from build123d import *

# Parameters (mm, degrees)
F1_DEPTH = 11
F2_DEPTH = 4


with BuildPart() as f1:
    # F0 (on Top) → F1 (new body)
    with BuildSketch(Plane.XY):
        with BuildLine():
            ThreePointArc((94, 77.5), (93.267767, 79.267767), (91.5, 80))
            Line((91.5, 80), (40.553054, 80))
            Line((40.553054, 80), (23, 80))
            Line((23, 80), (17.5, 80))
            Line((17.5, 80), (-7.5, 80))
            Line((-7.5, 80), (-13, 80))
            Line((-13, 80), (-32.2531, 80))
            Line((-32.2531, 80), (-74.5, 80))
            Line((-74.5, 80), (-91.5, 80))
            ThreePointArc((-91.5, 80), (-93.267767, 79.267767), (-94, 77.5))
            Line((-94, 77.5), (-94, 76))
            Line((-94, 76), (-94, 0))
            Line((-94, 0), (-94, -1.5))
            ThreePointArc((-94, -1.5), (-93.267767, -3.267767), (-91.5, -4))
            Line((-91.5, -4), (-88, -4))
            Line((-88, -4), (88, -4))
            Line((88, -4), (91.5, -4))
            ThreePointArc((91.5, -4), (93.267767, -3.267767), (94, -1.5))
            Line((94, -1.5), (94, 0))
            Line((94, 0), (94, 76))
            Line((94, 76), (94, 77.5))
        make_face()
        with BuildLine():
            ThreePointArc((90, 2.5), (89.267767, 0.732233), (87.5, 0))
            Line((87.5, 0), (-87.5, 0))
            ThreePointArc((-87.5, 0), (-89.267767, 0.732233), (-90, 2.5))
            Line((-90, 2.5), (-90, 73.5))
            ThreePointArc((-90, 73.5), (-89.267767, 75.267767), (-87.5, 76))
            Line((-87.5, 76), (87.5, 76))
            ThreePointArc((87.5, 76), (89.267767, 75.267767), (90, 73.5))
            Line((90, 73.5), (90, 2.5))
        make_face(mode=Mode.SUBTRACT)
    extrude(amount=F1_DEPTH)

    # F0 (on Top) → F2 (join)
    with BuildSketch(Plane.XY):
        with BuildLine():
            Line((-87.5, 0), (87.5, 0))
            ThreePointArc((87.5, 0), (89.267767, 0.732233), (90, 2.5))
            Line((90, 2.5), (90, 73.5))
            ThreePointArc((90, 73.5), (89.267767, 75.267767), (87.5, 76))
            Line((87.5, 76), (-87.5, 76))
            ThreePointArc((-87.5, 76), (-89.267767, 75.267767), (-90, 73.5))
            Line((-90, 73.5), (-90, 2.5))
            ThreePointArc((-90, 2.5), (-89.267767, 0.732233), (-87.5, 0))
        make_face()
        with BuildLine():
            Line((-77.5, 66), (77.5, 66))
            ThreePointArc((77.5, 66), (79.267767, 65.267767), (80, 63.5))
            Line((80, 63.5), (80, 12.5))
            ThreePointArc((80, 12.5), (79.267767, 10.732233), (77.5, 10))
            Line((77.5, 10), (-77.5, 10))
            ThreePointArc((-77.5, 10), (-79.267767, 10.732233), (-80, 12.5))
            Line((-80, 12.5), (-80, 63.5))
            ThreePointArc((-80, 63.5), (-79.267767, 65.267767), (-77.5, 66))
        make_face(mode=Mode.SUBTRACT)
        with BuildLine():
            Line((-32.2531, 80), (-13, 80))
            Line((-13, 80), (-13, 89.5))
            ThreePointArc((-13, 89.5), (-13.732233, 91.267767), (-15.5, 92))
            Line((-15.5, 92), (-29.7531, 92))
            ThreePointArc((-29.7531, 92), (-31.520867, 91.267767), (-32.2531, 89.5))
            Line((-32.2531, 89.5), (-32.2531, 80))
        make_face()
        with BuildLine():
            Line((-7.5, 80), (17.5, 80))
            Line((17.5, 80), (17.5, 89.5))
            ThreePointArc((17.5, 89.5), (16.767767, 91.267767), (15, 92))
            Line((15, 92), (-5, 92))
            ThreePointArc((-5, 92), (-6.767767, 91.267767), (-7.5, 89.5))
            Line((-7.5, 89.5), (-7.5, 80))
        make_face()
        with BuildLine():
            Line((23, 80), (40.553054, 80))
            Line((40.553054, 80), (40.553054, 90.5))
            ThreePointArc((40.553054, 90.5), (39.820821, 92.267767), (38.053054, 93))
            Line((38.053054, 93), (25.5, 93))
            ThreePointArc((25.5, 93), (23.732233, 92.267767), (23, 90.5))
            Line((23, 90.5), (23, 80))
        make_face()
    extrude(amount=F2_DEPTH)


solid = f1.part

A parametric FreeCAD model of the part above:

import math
import FreeCAD as App
import Part
import Sketcher

doc = App.newDocument("Part")
body = doc.addObject("PartDesign::Body", "Body")

# Sketch on XY plane
sketch1 = body.newObject("Sketcher::SketchObject", "Sketch")
sketch1.AttachmentSupport = (doc.getObject("XY_Plane"), [""])
sketch1.MapMode = "FlatFace"
sketch1.addGeometry(Part.ArcOfCircle(Part.Circle(App.Vector(91.5, 77.5, 0), App.Vector(0, 0, 1), 2.5), math.radians(0), math.radians(90)), False)
sketch1.addGeometry(Part.LineSegment(App.Vector(91.5, 80, 0), App.Vector(-91.5, 80, 0)), False)
sketch1.addGeometry(Part.ArcOfCircle(Part.Circle(App.Vector(-91.5, 77.5, 0), App.Vector(0, 0, 1), 2.5), math.radians(90), math.radians(180)), False)
sketch1.addGeometry(Part.LineSegment(App.Vector(-94, 77.5, 0), App.Vector(-94, -1.5, 0)), False)
sketch1.addGeometry(Part.ArcOfCircle(Part.Circle(App.Vector(-91.5, -1.5, 0), App.Vector(0, 0, 1), 2.5), math.radians(180), math.radians(270)), False)
sketch1.addGeometry(Part.LineSegment(App.Vector(-91.5, -4, 0), App.Vector(91.5, -4, 0)), False)
sketch1.addGeometry(Part.ArcOfCircle(Part.Circle(App.Vector(91.5, -1.5, 0), App.Vector(0, 0, 1), 2.5), math.radians(-90), math.radians(0)), False)
sketch1.addGeometry(Part.LineSegment(App.Vector(94, -1.5, 0), App.Vector(94, 77.5, 0)), False)
sketch1.addGeometry(Part.LineSegment(App.Vector(90, 73.5, 0), App.Vector(90, 2.5, 0)), False)
sketch1.addGeometry(Part.ArcOfCircle(Part.Circle(App.Vector(87.5, 2.5, 0), App.Vector(0, 0, 1), 2.5), math.radians(-90), math.radians(0)), False)
sketch1.addGeometry(Part.LineSegment(App.Vector(87.5, 0, 0), App.Vector(-87.5, 0, 0)), False)
sketch1.addGeometry(Part.ArcOfCircle(Part.Circle(App.Vector(-87.5, 2.5, 0), App.Vector(0, 0, 1), 2.5), math.radians(180), math.radians(270)), False)
sketch1.addGeometry(Part.LineSegment(App.Vector(-90, 2.5, 0), App.Vector(-90, 73.5, 0)), False)
sketch1.addGeometry(Part.ArcOfCircle(Part.Circle(App.Vector(-87.5, 73.5, 0), App.Vector(0, 0, 1), 2.5), math.radians(90), math.radians(180)), False)
sketch1.addGeometry(Part.LineSegment(App.Vector(-87.5, 76, 0), App.Vector(87.5, 76, 0)), False)
sketch1.addGeometry(Part.ArcOfCircle(Part.Circle(App.Vector(87.5, 73.5, 0), App.Vector(0, 0, 1), 2.5), math.radians(0), math.radians(90)), False)
sketch1.addConstraint(Sketcher.Constraint("Tangent", 0, 2, 1, 1))
sketch1.addConstraint(Sketcher.Constraint("Tangent", 1, 2, 2, 1))
sketch1.addConstraint(Sketcher.Constraint("Tangent", 2, 2, 3, 1))
sketch1.addConstraint(Sketcher.Constraint("Tangent", 3, 2, 4, 1))
sketch1.addConstraint(Sketcher.Constraint("Tangent", 4, 2, 5, 1))
sketch1.addConstraint(Sketcher.Constraint("Tangent", 5, 2, 6, 1))
sketch1.addConstraint(Sketcher.Constraint("Tangent", 6, 2, 7, 1))
sketch1.addConstraint(Sketcher.Constraint("Tangent", 7, 2, 0, 1))
sketch1.addConstraint(Sketcher.Constraint("Tangent", 8, 2, 9, 2))
sketch1.addConstraint(Sketcher.Constraint("Tangent", 9, 1, 10, 1))
sketch1.addConstraint(Sketcher.Constraint("Tangent", 10, 2, 11, 2))
sketch1.addConstraint(Sketcher.Constraint("Tangent", 11, 1, 12, 1))
sketch1.addConstraint(Sketcher.Constraint("Tangent", 12, 2, 13, 2))
sketch1.addConstraint(Sketcher.Constraint("Tangent", 13, 1, 14, 1))
sketch1.addConstraint(Sketcher.Constraint("Tangent", 14, 2, 15, 2))
sketch1.addConstraint(Sketcher.Constraint("Tangent", 15, 1, 8, 1))
sketch1.addConstraint(Sketcher.Constraint("Horizontal", 1))
sketch1.addConstraint(Sketcher.Constraint("Vertical", 3))
sketch1.addConstraint(Sketcher.Constraint("Horizontal", 5))
sketch1.addConstraint(Sketcher.Constraint("Vertical", 7))
sketch1.addConstraint(Sketcher.Constraint("Vertical", 8))
sketch1.addConstraint(Sketcher.Constraint("Horizontal", 10))
sketch1.addConstraint(Sketcher.Constraint("Vertical", 12))
sketch1.addConstraint(Sketcher.Constraint("Horizontal", 14))
sketch1.addConstraint(Sketcher.Constraint("Equal", 0, 2))
sketch1.addConstraint(Sketcher.Constraint("Equal", 2, 4))
sketch1.addConstraint(Sketcher.Constraint("Equal", 4, 6))
sketch1.addConstraint(Sketcher.Constraint("Equal", 6, 9))
sketch1.addConstraint(Sketcher.Constraint("Equal", 9, 11))
sketch1.addConstraint(Sketcher.Constraint("Equal", 11, 13))
sketch1.addConstraint(Sketcher.Constraint("Equal", 13, 15))
sketch1.addConstraint(Sketcher.Constraint("Symmetric", 9, 1, 10, 2, -1, 1))
sketch1.addConstraint(Sketcher.Constraint("Radius", 0, 2.5))
sketch1.addConstraint(Sketcher.Constraint("DistanceX", 1, 2, 1, 1, 183.0))
sketch1.addConstraint(Sketcher.Constraint("DistanceX", 10, 2, 10, 1, 175.0))
sketch1.addConstraint(Sketcher.Constraint("DistanceY", 3, 2, 3, 1, 79.0))
sketch1.addConstraint(Sketcher.Constraint("DistanceY", 8, 2, 8, 1, 71.0))
sketch1.addConstraint(Sketcher.Constraint("DistanceY", -1, 1, 0, 2, 80.0))
sketch1.addConstraint(Sketcher.Constraint("DistanceX", 2, 2, -1, 1, 94.0))
pad1 = body.newObject("PartDesign::Pad", "Pad")
pad1.Profile = sketch1
pad1.Length = 11

# Sketch on XY plane
sketch2 = body.newObject("Sketcher::SketchObject", "Sketch001")
sketch2.AttachmentSupport = (doc.getObject("XY_Plane"), [""])
sketch2.MapMode = "FlatFace"
sketch2.addGeometry(Part.LineSegment(App.Vector(-87.5, 0, 0), App.Vector(87.5, 0, 0)), False)
sketch2.addGeometry(Part.ArcOfCircle(Part.Circle(App.Vector(87.5, 2.5, 0), App.Vector(0, 0, 1), 2.5), math.radians(-90), math.radians(0)), False)
sketch2.addGeometry(Part.LineSegment(App.Vector(90, 2.5, 0), App.Vector(90, 73.5, 0)), False)
sketch2.addGeometry(Part.ArcOfCircle(Part.Circle(App.Vector(87.5, 73.5, 0), App.Vector(0, 0, 1), 2.5), math.radians(0), math.radians(90)), False)
sketch2.addGeometry(Part.LineSegment(App.Vector(87.5, 76, 0), App.Vector(-87.5, 76, 0)), False)
sketch2.addGeometry(Part.ArcOfCircle(Part.Circle(App.Vector(-87.5, 73.5, 0), App.Vector(0, 0, 1), 2.5), math.radians(90), math.radians(180)), False)
sketch2.addGeometry(Part.LineSegment(App.Vector(-90, 73.5, 0), App.Vector(-90, 2.5, 0)), False)
sketch2.addGeometry(Part.ArcOfCircle(Part.Circle(App.Vector(-87.5, 2.5, 0), App.Vector(0, 0, 1), 2.5), math.radians(180), math.radians(270)), False)
sketch2.addGeometry(Part.ArcOfCircle(Part.Circle(App.Vector(-77.5, 63.5, 0), App.Vector(0, 0, 1), 2.5), math.radians(90), math.radians(180)), False)
sketch2.addGeometry(Part.LineSegment(App.Vector(-77.5, 66, 0), App.Vector(77.5, 66, 0)), False)
sketch2.addGeometry(Part.ArcOfCircle(Part.Circle(App.Vector(77.5, 63.5, 0), App.Vector(0, 0, 1), 2.5), math.radians(0), math.radians(90)), False)
sketch2.addGeometry(Part.LineSegment(App.Vector(80, 63.5, 0), App.Vector(80, 12.5, 0)), False)
sketch2.addGeometry(Part.ArcOfCircle(Part.Circle(App.Vector(77.5, 12.5, 0), App.Vector(0, 0, 1), 2.5), math.radians(-90), math.radians(0)), False)
sketch2.addGeometry(Part.LineSegment(App.Vector(77.5, 10, 0), App.Vector(-77.5, 10, 0)), False)
sketch2.addGeometry(Part.ArcOfCircle(Part.Circle(App.Vector(-77.5, 12.5, 0), App.Vector(0, 0, 1), 2.5), math.radians(180), math.radians(270)), False)
sketch2.addGeometry(Part.LineSegment(App.Vector(-80, 12.5, 0), App.Vector(-80, 63.5, 0)), False)
sketch2.addGeometry(Part.LineSegment(App.Vector(-32.3, 80, 0), App.Vector(-13, 80, 0)), False)
sketch2.addGeometry(Part.LineSegment(App.Vector(-13, 80, 0), App.Vector(-13, 89.5, 0)), False)
sketch2.addGeometry(Part.ArcOfCircle(Part.Circle(App.Vector(-15.5, 89.5, 0), App.Vector(0, 0, 1), 2.5), math.radians(0), math.radians(90)), False)
sketch2.addGeometry(Part.LineSegment(App.Vector(-15.5, 92, 0), App.Vector(-29.8, 92, 0)), False)
sketch2.addGeometry(Part.ArcOfCircle(Part.Circle(App.Vector(-29.8, 89.5, 0), App.Vector(0, 0, 1), 2.5), math.radians(90), math.radians(180)), False)
sketch2.addGeometry(Part.LineSegment(App.Vector(-32.3, 89.5, 0), App.Vector(-32.3, 80, 0)), False)
sketch2.addGeometry(Part.LineSegment(App.Vector(-7.5, 80, 0), App.Vector(17.5, 80, 0)), False)
sketch2.addGeometry(Part.LineSegment(App.Vector(17.5, 80, 0), App.Vector(17.5, 89.5, 0)), False)
sketch2.addGeometry(Part.ArcOfCircle(Part.Circle(App.Vector(15, 89.5, 0), App.Vector(0, 0, 1), 2.5), math.radians(0), math.radians(90)), False)
sketch2.addGeometry(Part.LineSegment(App.Vector(15, 92, 0), App.Vector(-5, 92, 0)), False)
sketch2.addGeometry(Part.ArcOfCircle(Part.Circle(App.Vector(-5, 89.5, 0), App.Vector(0, 0, 1), 2.5), math.radians(90), math.radians(180)), False)
sketch2.addGeometry(Part.LineSegment(App.Vector(-7.5, 89.5, 0), App.Vector(-7.5, 80, 0)), False)
sketch2.addGeometry(Part.LineSegment(App.Vector(23, 80, 0), App.Vector(40.6, 80, 0)), False)
sketch2.addGeometry(Part.LineSegment(App.Vector(40.6, 80, 0), App.Vector(40.6, 90.5, 0)), False)
sketch2.addGeometry(Part.ArcOfCircle(Part.Circle(App.Vector(38.1, 90.5, 0), App.Vector(0, 0, 1), 2.5), math.radians(0), math.radians(90)), False)
sketch2.addGeometry(Part.LineSegment(App.Vector(38.1, 93, 0), App.Vector(25.5, 93, 0)), False)
sketch2.addGeometry(Part.ArcOfCircle(Part.Circle(App.Vector(25.5, 90.5, 0), App.Vector(0, 0, 1), 2.5), math.radians(90), math.radians(180)), False)
sketch2.addGeometry(Part.LineSegment(App.Vector(23, 90.5, 0), App.Vector(23, 80, 0)), False)
sketch2.addConstraint(Sketcher.Constraint("Tangent", 0, 2, 1, 1))
sketch2.addConstraint(Sketcher.Constraint("Tangent", 1, 2, 2, 1))
sketch2.addConstraint(Sketcher.Constraint("Tangent", 2, 2, 3, 1))
sketch2.addConstraint(Sketcher.Constraint("Tangent", 3, 2, 4, 1))
sketch2.addConstraint(Sketcher.Constraint("Tangent", 4, 2, 5, 1))
sketch2.addConstraint(Sketcher.Constraint("Tangent", 5, 2, 6, 1))
sketch2.addConstraint(Sketcher.Constraint("Tangent", 6, 2, 7, 1))
sketch2.addConstraint(Sketcher.Constraint("Tangent", 7, 2, 0, 1))
sketch2.addConstraint(Sketcher.Constraint("Tangent", 8, 1, 9, 1))
sketch2.addConstraint(Sketcher.Constraint("Tangent", 9, 2, 10, 2))
sketch2.addConstraint(Sketcher.Constraint("Tangent", 10, 1, 11, 1))
sketch2.addConstraint(Sketcher.Constraint("Tangent", 11, 2, 12, 2))
sketch2.addConstraint(Sketcher.Constraint("Tangent", 12, 1, 13, 1))
sketch2.addConstraint(Sketcher.Constraint("Tangent", 13, 2, 14, 2))
sketch2.addConstraint(Sketcher.Constraint("Tangent", 14, 1, 15, 1))
sketch2.addConstraint(Sketcher.Constraint("Tangent", 15, 2, 8, 2))
sketch2.addConstraint(Sketcher.Constraint("Coincident", 16, 2, 17, 1))
sketch2.addConstraint(Sketcher.Constraint("Tangent", 17, 2, 18, 1))
sketch2.addConstraint(Sketcher.Constraint("Tangent", 18, 2, 19, 1))
sketch2.addConstraint(Sketcher.Constraint("Tangent", 19, 2, 20, 1))
sketch2.addConstraint(Sketcher.Constraint("Tangent", 20, 2, 21, 1))
sketch2.addConstraint(Sketcher.Constraint("Coincident", 21, 2, 16, 1))
sketch2.addConstraint(Sketcher.Constraint("Coincident", 22, 2, 23, 1))
sketch2.addConstraint(Sketcher.Constraint("Tangent", 23, 2, 24, 1))
sketch2.addConstraint(Sketcher.Constraint("Tangent", 24, 2, 25, 1))
sketch2.addConstraint(Sketcher.Constraint("Tangent", 25, 2, 26, 1))
sketch2.addConstraint(Sketcher.Constraint("Tangent", 26, 2, 27, 1))
sketch2.addConstraint(Sketcher.Constraint("Coincident", 27, 2, 22, 1))
sketch2.addConstraint(Sketcher.Constraint("Coincident", 28, 2, 29, 1))
sketch2.addConstraint(Sketcher.Constraint("Tangent", 29, 2, 30, 1))
sketch2.addConstraint(Sketcher.Constraint("Tangent", 30, 2, 31, 1))
sketch2.addConstraint(Sketcher.Constraint("Tangent", 31, 2, 32, 1))
sketch2.addConstraint(Sketcher.Constraint("Tangent", 32, 2, 33, 1))
sketch2.addConstraint(Sketcher.Constraint("Coincident", 33, 2, 28, 1))
sketch2.addConstraint(Sketcher.Constraint("Horizontal", 0))
sketch2.addConstraint(Sketcher.Constraint("Vertical", 2))
sketch2.addConstraint(Sketcher.Constraint("Horizontal", 4))
sketch2.addConstraint(Sketcher.Constraint("Vertical", 6))
sketch2.addConstraint(Sketcher.Constraint("Horizontal", 9))
sketch2.addConstraint(Sketcher.Constraint("Vertical", 11))
sketch2.addConstraint(Sketcher.Constraint("Horizontal", 13))
sketch2.addConstraint(Sketcher.Constraint("Vertical", 15))
sketch2.addConstraint(Sketcher.Constraint("Horizontal", 16))
sketch2.addConstraint(Sketcher.Constraint("Vertical", 17))
sketch2.addConstraint(Sketcher.Constraint("Horizontal", 19))
sketch2.addConstraint(Sketcher.Constraint("Vertical", 21))
sketch2.addConstraint(Sketcher.Constraint("Horizontal", 22))
sketch2.addConstraint(Sketcher.Constraint("Vertical", 23))
sketch2.addConstraint(Sketcher.Constraint("Horizontal", 25))
sketch2.addConstraint(Sketcher.Constraint("Vertical", 27))
sketch2.addConstraint(Sketcher.Constraint("Horizontal", 28))
sketch2.addConstraint(Sketcher.Constraint("Vertical", 29))
sketch2.addConstraint(Sketcher.Constraint("Horizontal", 31))
sketch2.addConstraint(Sketcher.Constraint("Vertical", 33))
sketch2.addConstraint(Sketcher.Constraint("Equal", 1, 3))
sketch2.addConstraint(Sketcher.Constraint("Equal", 3, 5))
sketch2.addConstraint(Sketcher.Constraint("Equal", 5, 7))
sketch2.addConstraint(Sketcher.Constraint("Equal", 7, 8))
sketch2.addConstraint(Sketcher.Constraint("Equal", 8, 10))
sketch2.addConstraint(Sketcher.Constraint("Equal", 10, 12))
sketch2.addConstraint(Sketcher.Constraint("Equal", 12, 14))
sketch2.addConstraint(Sketcher.Constraint("Equal", 14, 18))
sketch2.addConstraint(Sketcher.Constraint("Equal", 18, 20))
sketch2.addConstraint(Sketcher.Constraint("Equal", 20, 24))
sketch2.addConstraint(Sketcher.Constraint("Equal", 24, 26))
sketch2.addConstraint(Sketcher.Constraint("Equal", 26, 30))
sketch2.addConstraint(Sketcher.Constraint("Equal", 30, 32))
sketch2.addConstraint(Sketcher.Constraint("Symmetric", 0, 2, 7, 2, -1, 1))
sketch2.addConstraint(Sketcher.Constraint("Horizontal", 20, 3, 24, 3))
sketch2.addConstraint(Sketcher.Constraint("Horizontal", 21, 2, 22, 2))
sketch2.addConstraint(Sketcher.Constraint("Horizontal", 27, 2, 28, 2))
sketch2.addConstraint(Sketcher.Constraint("Radius", 1, 2.5))
sketch2.addConstraint(Sketcher.Constraint("DistanceX", 0, 1, 0, 2, 175.0))
sketch2.addConstraint(Sketcher.Constraint("DistanceX", 9, 1, 9, 2, 155.0))
sketch2.addConstraint(Sketcher.Constraint("DistanceX", 22, 1, 22, 2, 25.0))
sketch2.addConstraint(Sketcher.Constraint("DistanceY", 2, 1, 2, 2, 71.0))
sketch2.addConstraint(Sketcher.Constraint("DistanceY", 11, 2, 11, 1, 51.0))
sketch2.addConstraint(Sketcher.Constraint("DistanceY", 17, 1, 17, 2, 9.5))
sketch2.addConstraint(Sketcher.Constraint("DistanceY", 29, 1, 29, 2, 10.5))
sketch2.addConstraint(Sketcher.Constraint("DistanceX", -1, 1, 24, 3, 15.0))
sketch2.addConstraint(Sketcher.Constraint("DistanceY", -1, 1, 8, 1, 66.0))
sketch2.addConstraint(Sketcher.Constraint("DistanceX", -1, 1, 10, 1, 80.0))
sketch2.addConstraint(Sketcher.Constraint("DistanceX", 16, 2, -1, 1, 13.0))
sketch2.addConstraint(Sketcher.Constraint("DistanceY", -1, 1, 16, 2, 80.0))
sketch2.addConstraint(Sketcher.Constraint("DistanceX", -1, 1, 32, 2, 23.0))
sketch2.addConstraint(Sketcher.Constraint("DistanceX", 16, 1, 16, 2, 19.2531))
sketch2.addConstraint(Sketcher.Constraint("DistanceX", 28, 1, 28, 2, 17.553054))
pad2 = body.newObject("PartDesign::Pad", "Pad001")
pad2.Profile = sketch2
pad2.Length = 4

doc.recompute()
